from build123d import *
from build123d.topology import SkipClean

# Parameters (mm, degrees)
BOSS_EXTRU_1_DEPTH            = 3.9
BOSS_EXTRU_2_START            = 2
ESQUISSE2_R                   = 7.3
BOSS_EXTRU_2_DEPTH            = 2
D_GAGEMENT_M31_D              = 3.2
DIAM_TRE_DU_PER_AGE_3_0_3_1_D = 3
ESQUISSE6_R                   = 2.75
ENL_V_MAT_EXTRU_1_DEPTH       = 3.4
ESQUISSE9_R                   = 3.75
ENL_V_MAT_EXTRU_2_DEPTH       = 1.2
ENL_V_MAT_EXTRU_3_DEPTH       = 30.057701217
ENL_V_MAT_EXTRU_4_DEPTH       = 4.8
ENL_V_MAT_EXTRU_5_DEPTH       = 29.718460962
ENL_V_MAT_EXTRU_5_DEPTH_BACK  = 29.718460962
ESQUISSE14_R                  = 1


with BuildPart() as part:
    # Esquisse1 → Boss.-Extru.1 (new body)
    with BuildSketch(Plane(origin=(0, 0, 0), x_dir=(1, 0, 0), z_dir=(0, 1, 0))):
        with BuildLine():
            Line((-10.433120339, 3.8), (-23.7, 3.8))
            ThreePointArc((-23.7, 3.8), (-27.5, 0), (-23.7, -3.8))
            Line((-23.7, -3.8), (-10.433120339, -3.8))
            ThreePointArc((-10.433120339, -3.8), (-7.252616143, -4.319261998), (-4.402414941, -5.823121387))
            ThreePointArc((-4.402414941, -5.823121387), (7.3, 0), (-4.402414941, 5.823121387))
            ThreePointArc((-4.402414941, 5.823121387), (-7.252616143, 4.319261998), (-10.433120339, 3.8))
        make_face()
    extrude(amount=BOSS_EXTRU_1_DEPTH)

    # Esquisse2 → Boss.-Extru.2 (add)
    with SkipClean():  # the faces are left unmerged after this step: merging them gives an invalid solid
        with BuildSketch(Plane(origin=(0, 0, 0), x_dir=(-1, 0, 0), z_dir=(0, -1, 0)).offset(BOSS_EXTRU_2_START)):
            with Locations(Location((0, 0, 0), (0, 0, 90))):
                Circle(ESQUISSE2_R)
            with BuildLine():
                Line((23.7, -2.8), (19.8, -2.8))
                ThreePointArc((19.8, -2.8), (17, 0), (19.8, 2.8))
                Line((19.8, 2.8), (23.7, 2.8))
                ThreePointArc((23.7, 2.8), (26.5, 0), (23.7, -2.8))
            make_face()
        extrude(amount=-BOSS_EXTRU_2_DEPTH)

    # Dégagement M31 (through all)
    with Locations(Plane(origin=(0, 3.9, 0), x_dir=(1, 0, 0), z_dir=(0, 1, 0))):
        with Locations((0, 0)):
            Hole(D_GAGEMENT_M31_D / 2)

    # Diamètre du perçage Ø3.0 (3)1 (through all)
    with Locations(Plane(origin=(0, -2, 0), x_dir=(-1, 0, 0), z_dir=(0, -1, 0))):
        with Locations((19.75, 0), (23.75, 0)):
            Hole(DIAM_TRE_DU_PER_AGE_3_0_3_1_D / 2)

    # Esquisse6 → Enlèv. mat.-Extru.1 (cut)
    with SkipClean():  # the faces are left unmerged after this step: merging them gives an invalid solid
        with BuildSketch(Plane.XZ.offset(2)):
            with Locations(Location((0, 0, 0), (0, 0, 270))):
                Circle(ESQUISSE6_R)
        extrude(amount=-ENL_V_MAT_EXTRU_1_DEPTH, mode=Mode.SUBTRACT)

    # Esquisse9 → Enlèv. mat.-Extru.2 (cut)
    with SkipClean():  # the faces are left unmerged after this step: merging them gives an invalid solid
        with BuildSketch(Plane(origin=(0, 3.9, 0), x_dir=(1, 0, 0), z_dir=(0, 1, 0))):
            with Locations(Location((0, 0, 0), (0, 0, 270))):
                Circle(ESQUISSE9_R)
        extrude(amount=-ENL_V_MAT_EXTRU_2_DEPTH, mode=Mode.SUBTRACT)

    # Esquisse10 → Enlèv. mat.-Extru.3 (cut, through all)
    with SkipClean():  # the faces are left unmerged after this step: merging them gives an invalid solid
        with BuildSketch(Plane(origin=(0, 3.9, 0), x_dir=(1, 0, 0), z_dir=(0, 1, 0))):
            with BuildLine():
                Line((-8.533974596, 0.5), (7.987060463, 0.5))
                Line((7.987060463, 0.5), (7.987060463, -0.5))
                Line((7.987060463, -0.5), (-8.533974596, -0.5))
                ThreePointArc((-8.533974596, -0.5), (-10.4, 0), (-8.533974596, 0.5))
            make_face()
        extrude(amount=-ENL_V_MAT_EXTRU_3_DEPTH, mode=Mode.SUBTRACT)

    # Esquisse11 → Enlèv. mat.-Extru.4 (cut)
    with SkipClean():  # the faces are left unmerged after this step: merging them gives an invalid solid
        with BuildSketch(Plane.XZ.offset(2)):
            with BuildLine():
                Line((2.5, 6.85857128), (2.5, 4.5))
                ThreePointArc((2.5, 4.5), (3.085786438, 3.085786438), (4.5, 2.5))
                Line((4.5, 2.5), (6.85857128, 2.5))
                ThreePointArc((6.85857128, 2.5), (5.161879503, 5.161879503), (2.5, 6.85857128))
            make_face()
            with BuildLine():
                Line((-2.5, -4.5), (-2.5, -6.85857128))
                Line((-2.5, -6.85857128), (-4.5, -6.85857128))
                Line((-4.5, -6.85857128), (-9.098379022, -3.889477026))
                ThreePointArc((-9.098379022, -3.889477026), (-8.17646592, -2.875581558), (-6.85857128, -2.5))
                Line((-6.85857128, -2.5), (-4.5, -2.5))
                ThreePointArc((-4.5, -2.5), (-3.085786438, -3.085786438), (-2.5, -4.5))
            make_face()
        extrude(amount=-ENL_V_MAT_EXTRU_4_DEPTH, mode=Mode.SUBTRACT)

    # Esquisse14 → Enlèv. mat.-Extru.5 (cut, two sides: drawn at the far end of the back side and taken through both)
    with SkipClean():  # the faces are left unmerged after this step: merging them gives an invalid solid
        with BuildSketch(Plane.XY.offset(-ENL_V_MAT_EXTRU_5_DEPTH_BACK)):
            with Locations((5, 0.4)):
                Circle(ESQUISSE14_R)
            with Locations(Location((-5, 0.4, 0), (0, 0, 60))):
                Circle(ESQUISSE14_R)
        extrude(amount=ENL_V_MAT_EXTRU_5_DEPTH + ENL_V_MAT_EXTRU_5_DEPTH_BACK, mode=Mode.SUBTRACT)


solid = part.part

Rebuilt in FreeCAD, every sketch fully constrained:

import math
import FreeCAD as App
import Part
import Sketcher
from FreeCAD import Vector

doc = App.newDocument("Part")
body = doc.addObject("PartDesign::Body", "Body")

# Sketch on XZ plane
sketch1 = body.newObject("Sketcher::SketchObject", "Sketch")
sketch1.AttachmentSupport = (doc.getObject("XZ_Plane"), [""])
sketch1.MapMode = "FlatFace"
sketch1.addGeometry(Part.LineSegment(Vector(-10.43312, -3.8, 0), Vector(-23.7, -3.8, 0)), False)
sketch1.addGeometry(Part.ArcOfCircle(Part.Circle(Vector(-23.7, 0, 0), Vector(0, 0, 1), 3.8), math.radians(90), math.radians(270)), False)
sketch1.addGeometry(Part.LineSegment(Vector(-23.7, 3.8, 0), Vector(-10.43312, 3.8, 0)), False)
sketch1.addGeometry(Part.ArcOfCircle(Part.Circle(Vector(-10.43312, 13.8, 0), Vector(0, 0, 1), 10), math.radians(-90), math.radians(-52.909873)), False)
sketch1.addGeometry(Part.ArcOfCircle(Part.Circle(Vector(0, 0, 0), Vector(0, 0, 1), 7.3), math.radians(-127.090127), math.radians(127.090127)), False)
sketch1.addGeometry(Part.ArcOfCircle(Part.Circle(Vector(-10.43312, -13.8, 0), Vector(0, 0, 1), 10), math.radians(52.909873), math.radians(90)), False)
sketch1.addConstraint(Sketcher.Constraint("Tangent", 0, 2, 1, 2))
sketch1.addConstraint(Sketcher.Constraint("Tangent", 1, 1, 2, 1))
sketch1.addConstraint(Sketcher.Constraint("Tangent", 2, 2, 3, 1))
sketch1.addConstraint(Sketcher.Constraint("Tangent", 3, 2, 4, 2))
sketch1.addConstraint(Sketcher.Constraint("Tangent", 4, 1, 5, 1))
sketch1.addConstraint(Sketcher.Constraint("Tangent", 5, 2, 0, 1))
sketch1.addConstraint(Sketcher.Constraint("Horizontal", 0))
sketch1.addConstraint(Sketcher.Constraint("Horizontal", 2))
sketch1.addConstraint(Sketcher.Constraint("Coincident", 4, 3, -1, 1))
sketch1.addConstraint(Sketcher.Constraint("Equal", 3, 5))
sketch1.addConstraint(Sketcher.Constraint("PointOnObject", 1, 3, -1))
sketch1.addConstraint(Sketcher.Constraint("Radius", 3, 10.0))
sketch1.addConstraint(Sketcher.Constraint("Radius", 1, 3.8))
sketch1.addConstraint(Sketcher.Constraint("Radius", 4, 7.3))
sketch1.addConstraint(Sketcher.Constraint("DistanceX", 1, 3, -1, 1, 23.7))
pad1 = body.newObject("PartDesign::Pad", "Pad")
pad1.Profile = sketch1
pad1.Length = 3.9
pad1.Reversed = True

# Sketch on XZ plane
sketch2 = body.newObject("Sketcher::SketchObject", "Sketch001")
sketch2.AttachmentSupport = (doc.getObject("XZ_Plane"), [""])
sketch2.MapMode = "FlatFace"
sketch2.AttachmentOffset = App.Placement(Vector(0, 0, 2), App.Rotation())
sketch2.addGeometry(Part.Circle(Vector(0, 0, 0), Vector(0, 0, 1), 7.3), False)
sketch2.addGeometry(Part.LineSegment(Vector(-19.8, 2.8, 0), Vector(-23.7, 2.8, 0)), False)
sketch2.addGeometry(Part.ArcOfCircle(Part.Circle(Vector(-23.7, 0, 0), Vector(0, 0, 1), 2.8), math.radians(90), math.radians(270)), False)
sketch2.addGeometry(Part.LineSegment(Vector(-23.7, -2.8, 0), Vector(-19.8, -2.8, 0)), False)
sketch2.addGeometry(Part.ArcOfCircle(Part.Circle(Vector(-19.8, 0, 0), Vector(0, 0, 1), 2.8), math.radians(-90), math.radians(90)), False)
sketch2.addConstraint(Sketcher.Constraint("Tangent", 1, 2, 2, 1))
sketch2.addConstraint(Sketcher.Constraint("Tangent", 2, 2, 3, 1))
sketch2.addConstraint(Sketcher.Constraint("Tangent", 3, 2, 4, 1))
sketch2.addConstraint(Sketcher.Constraint("Tangent", 4, 2, 1, 1))
sketch2.addConstraint(Sketcher.Constraint("Horizontal", 1))
sketch2.addConstraint(Sketcher.Constraint("Horizontal", 3))
sketch2.addConstraint(Sketcher.Constraint("Coincident", 0, 3, -1, 1))
sketch2.addConstraint(Sketcher.Constraint("PointOnObject", 2, 3, -1))
sketch2.addConstraint(Sketcher.Constraint("Diameter", 0, 14.6))
sketch2.addConstraint(Sketcher.Constraint("Radius", 2, 2.8))
sketch2.addConstraint(Sketcher.Constraint("DistanceX", 1, 2, 1, 1, 3.9))
sketch2.addConstraint(Sketcher.Constraint("DistanceX", 2, 3, -1, 1, 23.7))
pad2 = body.newObject("PartDesign::Pad", "Pad001")
pad2.Profile = sketch2
pad2.Length = 2
pad2.Reversed = True

# Sketch on XZ plane
sketch3 = body.newObject("Sketcher::SketchObject", "Sketch002")
sketch3.AttachmentSupport = (doc.getObject("XZ_Plane"), [""])
sketch3.MapMode = "FlatFace"
sketch3.AttachmentOffset = App.Placement(Vector(0, 0, -3.9), App.Rotation())
sketch3.addGeometry(Part.Circle(Vector(0, 0, 0), Vector(0, 0, 1), 1.6), False)
sketch3.addConstraint(Sketcher.Constraint("Coincident", 0, 3, -1, 1))
sketch3.addConstraint(Sketcher.Constraint("Diameter", 0, 3.2))
doc.recompute()
hole = body.newObject("PartDesign::Hole", "Hole")
hole.Profile = sketch3
hole.ThreadType = "None"
hole.Diameter = 3.2
hole.DepthType = "ThroughAll"
hole.Reversed = True

# Sketch on XZ plane
sketch4 = body.newObject("Sketcher::SketchObject", "Sketch003")
sketch4.AttachmentSupport = (doc.getObject("XZ_Plane"), [""])
sketch4.MapMode = "FlatFace"
sketch4.AttachmentOffset = App.Placement(Vector(0, 0, 2), App.Rotation())
sketch4.addGeometry(Part.Circle(Vector(-19.75, 0, 0), Vector(0, 0, 1), 1.5), False)
sketch4.addGeometry(Part.Circle(Vector(-23.75, 0, 0), Vector(0, 0, 1), 1.5), False)
sketch4.addConstraint(Sketcher.Constraint("Equal", 0, 1))
sketch4.addConstraint(Sketcher.Constraint("PointOnObject", 0, 3, -1))
sketch4.addConstraint(Sketcher.Constraint("PointOnObject", 1, 3, -1))
sketch4.addConstraint(Sketcher.Constraint("Diameter", 0, 3.0))
sketch4.addConstraint(Sketcher.Constraint("DistanceX", 1, 3, 0, 3, 4.0))
sketch4.addConstraint(Sketcher.Constraint("DistanceX", 0, 3, -1, 1, 19.75))
doc.recompute()
hole2 = body.newObject("PartDesign::Hole", "Hole001")
hole2.Profile = sketch4
hole2.ThreadType = "None"
hole2.Diameter = 3
hole2.DepthType = "ThroughAll"

# Sketch on XZ plane
sketch5 = body.newObject("Sketcher::SketchObject", "Sketch004")
sketch5.AttachmentSupport = (doc.getObject("XZ_Plane"), [""])
sketch5.MapMode = "FlatFace"
sketch5.AttachmentOffset = App.Placement(Vector(0, 0, 2), App.Rotation())
sketch5.addGeometry(Part.Circle(Vector(0, 0, 0), Vector(0, 0, 1), 2.75), False)
sketch5.addConstraint(Sketcher.Constraint("Coincident", 0, 3, -1, 1))
sketch5.addConstraint(Sketcher.Constraint("Diameter", 0, 5.5))
pocket1 = body.newObject("PartDesign::Pocket", "Pocket")
pocket1.Profile = sketch5
pocket1.Length = 3.4

# Sketch on XZ plane
sketch6 = body.newObject("Sketcher::SketchObject", "Sketch005")
sketch6.AttachmentSupport = (doc.getObject("XZ_Plane"), [""])
sketch6.MapMode = "FlatFace"
sketch6.AttachmentOffset = App.Placement(Vector(0, 0, -3.9), App.Rotation())
sketch6.addGeometry(Part.Circle(Vector(0, 0, 0), Vector(0, 0, 1), 3.75), False)
sketch6.addConstraint(Sketcher.Constraint("Coincident", 0, 3, -1, 1))
sketch6.addConstraint(Sketcher.Constraint("Diameter", 0, 7.5))
pocket2 = body.newObject("PartDesign::Pocket", "Pocket001")
pocket2.Profile = sketch6
pocket2.Length = 1.2
pocket2.Reversed = True

# Sketch on XZ plane
sketch7 = body.newObject("Sketcher::SketchObject", "Sketch006")
sketch7.AttachmentSupport = (doc.getObject("XZ_Plane"), [""])
sketch7.MapMode = "FlatFace"
sketch7.AttachmentOffset = App.Placement(Vector(0, 0, -3.9), App.Rotation())
sketch7.addGeometry(Part.LineSegment(Vector(7.98706, -0.5, 0), Vector(-8.533975, -0.5, 0)), False)
sketch7.addGeometry(Part.ArcOfCircle(Part.Circle(Vector(-9.4, 0, 0), Vector(0, 0, 1), 1), math.radians(30), math.radians(330)), False)
sketch7.addGeometry(Part.LineSegment(Vector(-8.533975, 0.5, 0), Vector(7.98706, 0.5, 0)), False)
sketch7.addGeometry(Part.LineSegment(Vector(7.98706, 0.5, 0), Vector(7.98706, -0.5, 0)), False)
sketch7.addConstraint(Sketcher.Constraint("Coincident", 0, 2, 1, 2))
sketch7.addConstraint(Sketcher.Constraint("Coincident", 1, 1, 2, 1))
sketch7.addConstraint(Sketcher.Constraint("Coincident", 2, 2, 3, 1))
sketch7.addConstraint(Sketcher.Constraint("Coincident", 3, 2, 0, 1))
sketch7.addConstraint(Sketcher.Constraint("Horizontal", 0))
sketch7.addConstraint(Sketcher.Constraint("Horizontal", 2))
sketch7.addConstraint(Sketcher.Constraint("Vertical", 3))
sketch7.addConstraint(Sketcher.Constraint("Symmetric", 0, 2, 1, 1, -1))
sketch7.addConstraint(Sketcher.Constraint("Radius", 1, 1.0))
sketch7.addConstraint(Sketcher.Constraint("DistanceY", 3, 2, 3, 1, 1.0))
sketch7.addConstraint(Sketcher.Constraint("DistanceX", 1, 3, -1, 1, 9.4))
sketch7.addConstraint(Sketcher.Constraint("DistanceX", 0, 2, 0, 1, 16.521035))
pocket3 = body.newObject("PartDesign::Pocket", "Pocket002")
pocket3.Profile = sketch7
pocket3.Type = "ThroughAll"
pocket3.Reversed = True

# Sketch on XZ plane
sketch8 = body.newObject("Sketcher::SketchObject", "Sketch007")
sketch8.AttachmentSupport = (doc.getObject("XZ_Plane"), [""])
sketch8.MapMode = "FlatFace"
sketch8.AttachmentOffset = App.Placement(Vector(0, 0, 2), App.Rotation())
sketch8.addGeometry(Part.LineSegment(Vector(2.5, 6.858571, 0), Vector(2.5, 4.5, 0)), False)
sketch8.addGeometry(Part.ArcOfCircle(Part.Circle(Vector(4.5, 4.5, 0), Vector(0, 0, 1), 2), math.radians(-180), math.radians(-90)), False)
sketch8.addGeometry(Part.LineSegment(Vector(4.5, 2.5, 0), Vector(6.858571, 2.5, 0)), False)
sketch8.addGeometry(Part.ArcOfCircle(Part.Circle(Vector(0, 0, 0), Vector(0, 0, 1), 7.3), math.radians(20.027172), math.radians(69.972828)), False)
sketch8.addGeometry(Part.LineSegment(Vector(-2.5, -6.858571, 0), Vector(-2.5, -4.5, 0)), False)
sketch8.addGeometry(Part.ArcOfCircle(Part.Circle(Vector(-4.5, -4.5, 0), Vector(0, 0, 1), 2), math.radians(0), math.radians(90)), False)
sketch8.addGeometry(Part.LineSegment(Vector(-4.5, -2.5, 0), Vector(-6.858571, -2.5, 0)), False)
sketch8.addGeometry(Part.ArcOfCircle(Part.Circle(Vector(-6.858571, -5, 0), Vector(0, 0, 1), 2.5), math.radians(90), math.radians(153.627246)), False)
sketch8.addGeometry(Part.LineSegment(Vector(-9.098379, -3.889477, 0), Vector(-4.5, -6.858571, 0)), False)
sketch8.addGeometry(Part.LineSegment(Vector(-4.5, -6.858571, 0), Vector(-2.5, -6.858571, 0)), False)
sketch8.addConstraint(Sketcher.Constraint("Tangent", 0, 2, 1, 1))
sketch8.addConstraint(Sketcher.Constraint("Tangent", 1, 2, 2, 1))
sketch8.addConstraint(Sketcher.Constraint("Coincident", 2, 2, 3, 1))
sketch8.addConstraint(Sketcher.Constraint("Coincident", 3, 2, 0, 1))
sketch8.addConstraint(Sketcher.Constraint("Tangent", 4, 2, 5, 1))
sketch8.addConstraint(Sketcher.Constraint("Tangent", 5, 2, 6, 1))
sketch8.addConstraint(Sketcher.Constraint("Tangent", 6, 2, 7, 1))
sketch8.addConstraint(Sketcher.Constraint("Coincident", 7, 2, 8, 1))
sketch8.addConstraint(Sketcher.Constraint("Coincident", 8, 2, 9, 1))
sketch8.addConstraint(Sketcher.Constraint("Coincident", 9, 2, 4, 1))
sketch8.addConstraint(Sketcher.Constraint("Vertical", 0))
sketch8.addConstraint(Sketcher.Constraint("Horizontal", 2))
sketch8.addConstraint(Sketcher.Constraint("Vertical", 4))
sketch8.addConstraint(Sketcher.Constraint("Horizontal", 6))
sketch8.addConstraint(Sketcher.Constraint("Horizontal", 9))
sketch8.addConstraint(Sketcher.Constraint("Coincident", 3, 3, -1, 1))
sketch8.addConstraint(Sketcher.Constraint("Equal", 1, 5))
sketch8.addConstraint(Sketcher.Constraint("Symmetric", 1, 3, 5, 3, -1, 1))
sketch8.addConstraint(Sketcher.Constraint("Vertical", 5, 2, 8, 2))
sketch8.addConstraint(Sketcher.Constraint("Equal", 2, 6))
sketch8.addConstraint(Sketcher.Constraint("Equal", 6, 0))
sketch8.addConstraint(Sketcher.Constraint("Equal", 0, 4))
sketch8.addConstraint(Sketcher.Constraint("Radius", 1, 2.0))
sketch8.addConstraint(Sketcher.Constraint("Radius", 3, 7.3))
sketch8.addConstraint(Sketcher.Constraint("Radius", 7, 2.5))
sketch8.addConstraint(Sketcher.Constraint("DistanceY", 7, 3, -1, 1, 5.0))
sketch8.addConstraint(Sketcher.Constraint("Distance", 8, 5.473629))
pocket4 = body.newObject("PartDesign::Pocket", "Pocket003")
pocket4.Profile = sketch8
pocket4.Length = 4.8

# Sketch on XY plane
sketch9 = body.newObject("Sketcher::SketchObject", "Sketch008")
sketch9.AttachmentSupport = (doc.getObject("XY_Plane"), [""])
sketch9.MapMode = "FlatFace"
sketch9.addGeometry(Part.Circle(Vector(5, 0.4, 0), Vector(0, 0, 1), 1), False)
sketch9.addGeometry(Part.Circle(Vector(-5, 0.4, 0), Vector(0, 0, 1), 1), False)
sketch9.addConstraint(Sketcher.Constraint("Equal", 0, 1))
sketch9.addConstraint(Sketcher.Constraint("Symmetric", 0, 3, 1, 3, -2))
sketch9.addConstraint(Sketcher.Constraint("Diameter", 0, 2.0))
sketch9.addConstraint(Sketcher.Constraint("DistanceX", -1, 1, 0, 3, 5.0))
sketch9.addConstraint(Sketcher.Constraint("DistanceY", -1, 1, 0, 3, 0.4))
pocket5 = body.newObject("PartDesign::Pocket", "Pocket004")
pocket5.Profile = sketch9
pocket5.Type = "ThroughAll"
pocket5.Midplane = True

doc.recompute()
